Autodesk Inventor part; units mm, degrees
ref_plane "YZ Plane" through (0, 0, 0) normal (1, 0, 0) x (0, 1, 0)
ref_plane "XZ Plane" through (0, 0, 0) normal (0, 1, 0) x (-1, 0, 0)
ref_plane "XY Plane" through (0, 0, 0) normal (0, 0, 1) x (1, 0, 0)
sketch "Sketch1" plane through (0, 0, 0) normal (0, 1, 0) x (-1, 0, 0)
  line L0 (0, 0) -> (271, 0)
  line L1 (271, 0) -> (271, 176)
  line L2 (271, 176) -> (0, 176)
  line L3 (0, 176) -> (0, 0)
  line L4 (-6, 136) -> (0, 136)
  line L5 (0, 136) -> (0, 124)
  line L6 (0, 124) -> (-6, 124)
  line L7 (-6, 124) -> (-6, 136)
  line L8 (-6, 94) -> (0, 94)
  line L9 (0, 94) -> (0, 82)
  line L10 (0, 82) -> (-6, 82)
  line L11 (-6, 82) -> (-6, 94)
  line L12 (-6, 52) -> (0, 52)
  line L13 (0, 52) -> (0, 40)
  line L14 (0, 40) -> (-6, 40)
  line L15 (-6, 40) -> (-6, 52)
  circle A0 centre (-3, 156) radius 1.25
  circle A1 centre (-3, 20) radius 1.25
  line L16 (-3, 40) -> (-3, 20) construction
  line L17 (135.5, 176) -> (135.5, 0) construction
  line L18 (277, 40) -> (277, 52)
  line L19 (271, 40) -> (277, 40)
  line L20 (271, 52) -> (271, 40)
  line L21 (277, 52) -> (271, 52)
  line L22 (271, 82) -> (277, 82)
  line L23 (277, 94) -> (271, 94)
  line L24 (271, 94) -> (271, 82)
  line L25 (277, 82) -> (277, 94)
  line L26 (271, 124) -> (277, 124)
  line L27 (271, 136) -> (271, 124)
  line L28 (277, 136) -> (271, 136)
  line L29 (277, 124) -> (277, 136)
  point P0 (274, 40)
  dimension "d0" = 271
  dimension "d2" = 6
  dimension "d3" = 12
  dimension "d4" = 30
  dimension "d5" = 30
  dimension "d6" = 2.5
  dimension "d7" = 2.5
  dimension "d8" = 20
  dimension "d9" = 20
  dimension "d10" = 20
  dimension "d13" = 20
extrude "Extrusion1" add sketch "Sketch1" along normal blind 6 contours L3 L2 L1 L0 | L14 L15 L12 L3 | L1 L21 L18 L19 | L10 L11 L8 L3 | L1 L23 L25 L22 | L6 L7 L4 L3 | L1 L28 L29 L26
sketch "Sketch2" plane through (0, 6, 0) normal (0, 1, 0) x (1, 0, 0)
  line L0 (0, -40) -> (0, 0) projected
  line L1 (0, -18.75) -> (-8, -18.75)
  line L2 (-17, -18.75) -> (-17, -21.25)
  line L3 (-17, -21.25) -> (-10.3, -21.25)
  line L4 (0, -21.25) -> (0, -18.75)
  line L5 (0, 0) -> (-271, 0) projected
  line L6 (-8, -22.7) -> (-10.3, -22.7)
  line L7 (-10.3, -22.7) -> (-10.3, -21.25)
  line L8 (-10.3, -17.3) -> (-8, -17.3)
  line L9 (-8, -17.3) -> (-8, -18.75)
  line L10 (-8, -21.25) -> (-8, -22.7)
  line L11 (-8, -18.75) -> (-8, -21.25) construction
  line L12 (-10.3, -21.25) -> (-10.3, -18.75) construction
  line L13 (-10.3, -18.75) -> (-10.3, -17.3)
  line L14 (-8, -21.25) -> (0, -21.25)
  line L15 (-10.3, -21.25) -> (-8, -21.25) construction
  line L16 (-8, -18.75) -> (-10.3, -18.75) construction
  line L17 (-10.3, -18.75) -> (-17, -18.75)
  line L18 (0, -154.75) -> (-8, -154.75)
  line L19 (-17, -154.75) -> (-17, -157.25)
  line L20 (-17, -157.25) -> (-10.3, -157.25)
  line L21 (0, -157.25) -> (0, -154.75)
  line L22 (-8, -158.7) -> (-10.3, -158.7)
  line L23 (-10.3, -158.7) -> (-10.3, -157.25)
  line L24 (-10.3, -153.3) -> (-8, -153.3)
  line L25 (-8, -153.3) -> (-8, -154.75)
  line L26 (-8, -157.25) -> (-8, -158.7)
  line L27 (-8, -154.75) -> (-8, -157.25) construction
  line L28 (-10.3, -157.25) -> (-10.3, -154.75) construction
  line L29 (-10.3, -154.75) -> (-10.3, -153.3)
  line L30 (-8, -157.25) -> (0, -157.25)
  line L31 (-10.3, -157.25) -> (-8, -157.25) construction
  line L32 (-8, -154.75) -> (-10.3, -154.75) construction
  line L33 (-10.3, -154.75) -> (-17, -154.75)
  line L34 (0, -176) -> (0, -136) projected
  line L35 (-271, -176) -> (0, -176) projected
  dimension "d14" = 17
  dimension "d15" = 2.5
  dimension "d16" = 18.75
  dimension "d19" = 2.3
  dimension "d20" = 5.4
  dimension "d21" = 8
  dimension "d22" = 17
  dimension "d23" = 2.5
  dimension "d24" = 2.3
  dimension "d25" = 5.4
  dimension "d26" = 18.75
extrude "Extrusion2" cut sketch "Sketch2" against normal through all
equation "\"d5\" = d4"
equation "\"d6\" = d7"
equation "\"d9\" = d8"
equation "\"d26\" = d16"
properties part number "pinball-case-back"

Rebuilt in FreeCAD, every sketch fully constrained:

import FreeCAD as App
import Part
import Sketcher

V = App.Vector


def add_polygon(sketch, points):
    """Adds a closed chain of lines whose ends are joined by coincident constraints."""
    first, n = sketch.GeometryCount, len(points)
    for a, b in zip(points, points[1:] + points[:1]):
        sketch.addGeometry(Part.LineSegment(App.Vector(*a, 0), App.Vector(*b, 0)), False)
    for i in range(n):
        sketch.addConstraint(Sketcher.Constraint("Coincident", first + i, 2, first + (i + 1) % n, 1))

doc = App.newDocument("Part")
body = doc.addObject("PartDesign::Body", "Body")

sketch1 = body.newObject("Sketcher::SketchObject", "Sketch")
sketch1.AttachmentSupport = (doc.getObject("XZ_Plane"), [""])
sketch1.MapMode = "FlatFace"
add_polygon(sketch1, [(0, 40), (0, 0), (-271, 0), (-271, 40), (-277, 40), (-277, 52), (-271, 52), (-271, 82), (-277, 82), (-277, 94), (-271, 94), (-271, 124), (-277, 124), (-277, 136), (-271, 136), (-271, 176), (0, 176), (0, 136), (6, 136), (6, 124), (0, 124), (0, 94), (6, 94), (6, 82), (0, 82), (0, 52), (6, 52), (6, 40)])
sketch1.addConstraint([
    Sketcher.Constraint("Vertical", 0),
    Sketcher.Constraint("Horizontal", 1),
    Sketcher.Constraint("Vertical", 2),
    Sketcher.Constraint("Horizontal", 3),
    Sketcher.Constraint("Vertical", 4),
    Sketcher.Constraint("Horizontal", 5),
    Sketcher.Constraint("Vertical", 6),
    Sketcher.Constraint("Horizontal", 7),
    Sketcher.Constraint("Vertical", 8),
    Sketcher.Constraint("Horizontal", 9),
    Sketcher.Constraint("Vertical", 10),
    Sketcher.Constraint("Horizontal", 11),
    Sketcher.Constraint("Vertical", 12),
    Sketcher.Constraint("Horizontal", 13),
    Sketcher.Constraint("Vertical", 14),
    Sketcher.Constraint("Horizontal", 15),
    Sketcher.Constraint("Vertical", 16),
    Sketcher.Constraint("Horizontal", 17),
    Sketcher.Constraint("Vertical", 18),
    Sketcher.Constraint("Horizontal", 19),
    Sketcher.Constraint("Vertical", 20),
    Sketcher.Constraint("Horizontal", 21),
    Sketcher.Constraint("Vertical", 22),
    Sketcher.Constraint("Horizontal", 23),
    Sketcher.Constraint("Vertical", 24),
    Sketcher.Constraint("Horizontal", 25),
    Sketcher.Constraint("Vertical", 26),
    Sketcher.Constraint("Horizontal", 27),
    Sketcher.Constraint("Coincident", 0, 2, -1, 1),
    Sketcher.Constraint("PointOnObject", 15, 2, -2),
    Sketcher.Constraint("PointOnObject", 19, 2, -2),
    Sketcher.Constraint("PointOnObject", 23, 2, -2),
    Sketcher.Constraint("Horizontal", 13, 2, 16, 2),
    Sketcher.Constraint("Horizontal", 11, 2, 18, 2),
    Sketcher.Constraint("Horizontal", 9, 2, 20, 2),
    Sketcher.Constraint("Horizontal", 7, 2, 22, 2),
    Sketcher.Constraint("Horizontal", 5, 2, 24, 2),
    Sketcher.Constraint("Horizontal", 3, 2, 26, 2),
    Sketcher.Constraint("Vertical", 2, 2, 5, 2),
    Sketcher.Constraint("Vertical", 4, 2, 7, 2),
    Sketcher.Constraint("Vertical", 6, 2, 9, 2),
    Sketcher.Constraint("Vertical", 8, 2, 11, 2),
    Sketcher.Constraint("Vertical", 10, 2, 13, 2),
    Sketcher.Constraint("Vertical", 18, 2, 21, 2),
    Sketcher.Constraint("Vertical", 22, 2, 25, 2),
    Sketcher.Constraint("Equal", 13, 17),
    Sketcher.Constraint("Equal", 4, 8),
    Sketcher.Constraint("Equal", 6, 10),
    Sketcher.Constraint("Equal", 8, 12),
    Sketcher.Constraint("Equal", 2, 14),
    Sketcher.Constraint("DistanceX", 1, 2, 1, 1, 271.0),
    Sketcher.Constraint("DistanceX", 3, 2, 3, 1, 6.0),
    Sketcher.Constraint("DistanceY", 4, 1, 4, 2, 12.0),
    Sketcher.Constraint("DistanceY", 6, 1, 6, 2, 30.0),
    Sketcher.Constraint("DistanceY", 0, 2, 0, 1, 40.0),
])
pad1 = body.newObject("PartDesign::Pad", "Pad")
pad1.Profile = sketch1
pad1.Length = 6
pad1.Reversed = True

sketch2 = body.newObject("Sketcher::SketchObject", "Sketch001")
sketch2.AttachmentSupport = (doc.getObject("XZ_Plane"), [""])
sketch2.MapMode = "FlatFace"
sketch2.AttachmentOffset = App.Placement(V(0, 0, -6), App.Rotation())
add_polygon(sketch2, [(-8, 21.25), (0, 21.25), (0, 18.75), (-8, 18.75), (-8, 17.3), (-10.3, 17.3), (-10.3, 18.75), (-17, 18.75), (-17, 21.25), (-10.3, 21.25), (-10.3, 22.7), (-8, 22.7)])
add_polygon(sketch2, [(0, 157.25), (0, 154.75), (-8, 154.75), (-8, 153.3), (-10.3, 153.3), (-10.3, 154.75), (-17, 154.75), (-17, 157.25), (-10.3, 157.25), (-10.3, 158.7), (-8, 158.7), (-8, 157.25)])
sketch2.addConstraint([
    Sketcher.Constraint("Horizontal", 0),
    Sketcher.Constraint("Vertical", 1),
    Sketcher.Constraint("Horizontal", 2),
    Sketcher.Constraint("Vertical", 3),
    Sketcher.Constraint("Horizontal", 4),
    Sketcher.Constraint("Vertical", 5),
    Sketcher.Constraint("Horizontal", 6),
    Sketcher.Constraint("Vertical", 7),
    Sketcher.Constraint("Horizontal", 8),
    Sketcher.Constraint("Vertical", 9),
    Sketcher.Constraint("Horizontal", 10),
    Sketcher.Constraint("Vertical", 11),
    Sketcher.Constraint("Vertical", 12),
    Sketcher.Constraint("Horizontal", 13),
    Sketcher.Constraint("Vertical", 14),
    Sketcher.Constraint("Horizontal", 15),
    Sketcher.Constraint("Vertical", 16),
    Sketcher.Constraint("Horizontal", 17),
    Sketcher.Constraint("Vertical", 18),
    Sketcher.Constraint("Horizontal", 19),
    Sketcher.Constraint("Vertical", 20),
    Sketcher.Constraint("Horizontal", 21),
    Sketcher.Constraint("Vertical", 22),
    Sketcher.Constraint("Horizontal", 23),
    Sketcher.Constraint("PointOnObject", 0, 2, -2),
    Sketcher.Constraint("PointOnObject", 12, 2, -2),
    Sketcher.Constraint("Horizontal", 2, 2, 5, 2),
    Sketcher.Constraint("Horizontal", 0, 2, 7, 2),
    Sketcher.Constraint("Horizontal", 13, 2, 16, 2),
    Sketcher.Constraint("Horizontal", 19, 2, 22, 2),
    Sketcher.Constraint("Vertical", 5, 2, 8, 2),
    Sketcher.Constraint("Vertical", 3, 2, 10, 2),
    Sketcher.Constraint("Vertical", 11, 2, 13, 2),
    Sketcher.Constraint("Vertical", 9, 2, 15, 2),
    Sketcher.Constraint("Vertical", 7, 2, 17, 2),
    Sketcher.Constraint("Vertical", 16, 2, 19, 2),
    Sketcher.Constraint("Vertical", 14, 2, 21, 2),
    Sketcher.Constraint("Equal", 5, 9),
    Sketcher.Constraint("Equal", 7, 12),
    Sketcher.Constraint("Equal", 11, 14),
    Sketcher.Constraint("Equal", 16, 20),
    Sketcher.Constraint("DistanceX", 0, 1, 0, 2, 8.0),
    Sketcher.Constraint("DistanceX", 4, 2, 4, 1, 2.3),
    Sketcher.Constraint("DistanceY", 1, 2, 1, 1, 2.5),
    Sketcher.Constraint("DistanceX", 6, 2, -1, 1, 17.0),
    Sketcher.Constraint("DistanceY", 4, 2, 9, 2, 5.4),
    Sketcher.Constraint("DistanceY", -1, 1, 1, 2, 18.75),
    Sketcher.Constraint("DistanceY", -1, 1, 14, 2, 153.3),
])
pocket1 = body.newObject("PartDesign::Pocket", "Pocket")
pocket1.Profile = sketch2
pocket1.Type = "ThroughAll"
pocket1.Reversed = True

doc.recompute()
